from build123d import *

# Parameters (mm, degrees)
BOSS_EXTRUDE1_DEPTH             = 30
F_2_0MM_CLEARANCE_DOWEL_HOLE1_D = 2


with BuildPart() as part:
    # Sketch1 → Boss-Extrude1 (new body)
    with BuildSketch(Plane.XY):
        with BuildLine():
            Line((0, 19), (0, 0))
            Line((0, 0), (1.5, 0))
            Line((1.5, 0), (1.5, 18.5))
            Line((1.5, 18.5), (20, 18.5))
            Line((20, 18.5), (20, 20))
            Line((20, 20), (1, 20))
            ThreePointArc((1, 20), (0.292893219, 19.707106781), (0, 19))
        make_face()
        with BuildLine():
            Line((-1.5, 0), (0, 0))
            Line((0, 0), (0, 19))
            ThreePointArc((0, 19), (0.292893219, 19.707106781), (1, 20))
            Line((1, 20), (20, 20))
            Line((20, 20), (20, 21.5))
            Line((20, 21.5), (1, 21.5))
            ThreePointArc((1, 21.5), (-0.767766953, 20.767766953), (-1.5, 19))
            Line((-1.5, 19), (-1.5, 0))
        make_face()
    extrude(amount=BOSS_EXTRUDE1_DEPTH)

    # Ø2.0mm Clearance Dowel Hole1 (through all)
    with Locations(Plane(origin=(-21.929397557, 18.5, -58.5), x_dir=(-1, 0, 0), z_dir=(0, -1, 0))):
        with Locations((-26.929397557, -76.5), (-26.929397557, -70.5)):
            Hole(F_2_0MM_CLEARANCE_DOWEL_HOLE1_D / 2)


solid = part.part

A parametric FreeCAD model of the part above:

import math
import FreeCAD as App
import Part
import Sketcher
from FreeCAD import Vector

doc = App.newDocument("Part")
body = doc.addObject("PartDesign::Body", "Body")

sketch1 = doc.addObject("Sketcher::SketchObject", "Sketch")
body.addObject(sketch1)
sketch1.AttachmentSupport = (doc.XY_Plane, [""])
sketch1.MapMode = "FlatFace"
sketch1.addGeometry([
    Part.LineSegment(Vector(1.5, 0, 0), Vector(1.5, 18.5, 0)),
    Part.LineSegment(Vector(1.5, 18.5, 0), Vector(20, 18.5, 0)),
    Part.LineSegment(Vector(20, 18.5, 0), Vector(20, 21.5, 0)),
    Part.LineSegment(Vector(20, 21.5, 0), Vector(1, 21.5, 0)),
    Part.ArcOfCircle(Part.Circle(Vector(1, 19, 0), Vector(0, 0, 1), 2.5), math.radians(90), math.radians(180)),
    Part.LineSegment(Vector(-1.5, 19, 0), Vector(-1.5, 0, 0)),
    Part.LineSegment(Vector(-1.5, 0, 0), Vector(1.5, 0, 0)),
], False)
sketch1.addConstraint([
    Sketcher.Constraint("Coincident", 0, 2, 1, 1),
    Sketcher.Constraint("Coincident", 1, 2, 2, 1),
    Sketcher.Constraint("Coincident", 2, 2, 3, 1),
    Sketcher.Constraint("Tangent", 3, 2, 4, 1),
    Sketcher.Constraint("Tangent", 4, 2, 5, 1),
    Sketcher.Constraint("Coincident", 5, 2, 6, 1),
    Sketcher.Constraint("Coincident", 6, 2, 0, 1),
    Sketcher.Constraint("Vertical", 0),
    Sketcher.Constraint("Horizontal", 1),
    Sketcher.Constraint("Vertical", 2),
    Sketcher.Constraint("Horizontal", 3),
    Sketcher.Constraint("Vertical", 5),
    Sketcher.Constraint("Horizontal", 6),
    Sketcher.Constraint("Symmetric", 5, 2, 6, 2, -1, 1),
    Sketcher.Constraint("Equal", 1, 0),
    Sketcher.Constraint("Equal", 6, 2),
    Sketcher.Constraint("Radius", 4, 2.5),
    Sketcher.Constraint("DistanceX", 3, 2, 3, 1, 19.0),
    Sketcher.Constraint("DistanceX", 6, 1, 6, 2, 3.0),
])
pad1 = doc.addObject("PartDesign::Pad", "Pad")
body.addObject(pad1)
pad1.Profile = sketch1
pad1.Length = 30

sketch2 = doc.addObject("Sketcher::SketchObject", "Sketch001")
body.addObject(sketch2)
sketch2.AttachmentSupport = (doc.XZ_Plane, [""])
sketch2.MapMode = "FlatFace"
sketch2.AttachmentOffset = App.Placement(Vector(0, 0, -18.5), App.Rotation())
sketch2.addGeometry([
    Part.Circle(Vector(5, 18, 0), Vector(0, 0, 1), 1),
    Part.Circle(Vector(5, 12, 0), Vector(0, 0, 1), 1),
], False)
sketch2.addConstraint([
    Sketcher.Constraint("Equal", 0, 1),
    Sketcher.Constraint("Vertical", 0, 3, 1, 3),
    Sketcher.Constraint("Diameter", 0, 2.0),
    Sketcher.Constraint("DistanceX", -1, 1, 0, 3, 5.0),
    Sketcher.Constraint("DistanceY", -1, 1, 0, 3, 18.0),
    Sketcher.Constraint("DistanceY", -1, 1, 1, 3, 12.0),
])
doc.recompute()
hole = doc.addObject("PartDesign::Hole", "Hole")
body.addObject(hole)
hole.Profile = sketch2
hole.ThreadType = "None"
hole.Diameter = 2
hole.DepthType = "ThroughAll"

doc.recompute()
